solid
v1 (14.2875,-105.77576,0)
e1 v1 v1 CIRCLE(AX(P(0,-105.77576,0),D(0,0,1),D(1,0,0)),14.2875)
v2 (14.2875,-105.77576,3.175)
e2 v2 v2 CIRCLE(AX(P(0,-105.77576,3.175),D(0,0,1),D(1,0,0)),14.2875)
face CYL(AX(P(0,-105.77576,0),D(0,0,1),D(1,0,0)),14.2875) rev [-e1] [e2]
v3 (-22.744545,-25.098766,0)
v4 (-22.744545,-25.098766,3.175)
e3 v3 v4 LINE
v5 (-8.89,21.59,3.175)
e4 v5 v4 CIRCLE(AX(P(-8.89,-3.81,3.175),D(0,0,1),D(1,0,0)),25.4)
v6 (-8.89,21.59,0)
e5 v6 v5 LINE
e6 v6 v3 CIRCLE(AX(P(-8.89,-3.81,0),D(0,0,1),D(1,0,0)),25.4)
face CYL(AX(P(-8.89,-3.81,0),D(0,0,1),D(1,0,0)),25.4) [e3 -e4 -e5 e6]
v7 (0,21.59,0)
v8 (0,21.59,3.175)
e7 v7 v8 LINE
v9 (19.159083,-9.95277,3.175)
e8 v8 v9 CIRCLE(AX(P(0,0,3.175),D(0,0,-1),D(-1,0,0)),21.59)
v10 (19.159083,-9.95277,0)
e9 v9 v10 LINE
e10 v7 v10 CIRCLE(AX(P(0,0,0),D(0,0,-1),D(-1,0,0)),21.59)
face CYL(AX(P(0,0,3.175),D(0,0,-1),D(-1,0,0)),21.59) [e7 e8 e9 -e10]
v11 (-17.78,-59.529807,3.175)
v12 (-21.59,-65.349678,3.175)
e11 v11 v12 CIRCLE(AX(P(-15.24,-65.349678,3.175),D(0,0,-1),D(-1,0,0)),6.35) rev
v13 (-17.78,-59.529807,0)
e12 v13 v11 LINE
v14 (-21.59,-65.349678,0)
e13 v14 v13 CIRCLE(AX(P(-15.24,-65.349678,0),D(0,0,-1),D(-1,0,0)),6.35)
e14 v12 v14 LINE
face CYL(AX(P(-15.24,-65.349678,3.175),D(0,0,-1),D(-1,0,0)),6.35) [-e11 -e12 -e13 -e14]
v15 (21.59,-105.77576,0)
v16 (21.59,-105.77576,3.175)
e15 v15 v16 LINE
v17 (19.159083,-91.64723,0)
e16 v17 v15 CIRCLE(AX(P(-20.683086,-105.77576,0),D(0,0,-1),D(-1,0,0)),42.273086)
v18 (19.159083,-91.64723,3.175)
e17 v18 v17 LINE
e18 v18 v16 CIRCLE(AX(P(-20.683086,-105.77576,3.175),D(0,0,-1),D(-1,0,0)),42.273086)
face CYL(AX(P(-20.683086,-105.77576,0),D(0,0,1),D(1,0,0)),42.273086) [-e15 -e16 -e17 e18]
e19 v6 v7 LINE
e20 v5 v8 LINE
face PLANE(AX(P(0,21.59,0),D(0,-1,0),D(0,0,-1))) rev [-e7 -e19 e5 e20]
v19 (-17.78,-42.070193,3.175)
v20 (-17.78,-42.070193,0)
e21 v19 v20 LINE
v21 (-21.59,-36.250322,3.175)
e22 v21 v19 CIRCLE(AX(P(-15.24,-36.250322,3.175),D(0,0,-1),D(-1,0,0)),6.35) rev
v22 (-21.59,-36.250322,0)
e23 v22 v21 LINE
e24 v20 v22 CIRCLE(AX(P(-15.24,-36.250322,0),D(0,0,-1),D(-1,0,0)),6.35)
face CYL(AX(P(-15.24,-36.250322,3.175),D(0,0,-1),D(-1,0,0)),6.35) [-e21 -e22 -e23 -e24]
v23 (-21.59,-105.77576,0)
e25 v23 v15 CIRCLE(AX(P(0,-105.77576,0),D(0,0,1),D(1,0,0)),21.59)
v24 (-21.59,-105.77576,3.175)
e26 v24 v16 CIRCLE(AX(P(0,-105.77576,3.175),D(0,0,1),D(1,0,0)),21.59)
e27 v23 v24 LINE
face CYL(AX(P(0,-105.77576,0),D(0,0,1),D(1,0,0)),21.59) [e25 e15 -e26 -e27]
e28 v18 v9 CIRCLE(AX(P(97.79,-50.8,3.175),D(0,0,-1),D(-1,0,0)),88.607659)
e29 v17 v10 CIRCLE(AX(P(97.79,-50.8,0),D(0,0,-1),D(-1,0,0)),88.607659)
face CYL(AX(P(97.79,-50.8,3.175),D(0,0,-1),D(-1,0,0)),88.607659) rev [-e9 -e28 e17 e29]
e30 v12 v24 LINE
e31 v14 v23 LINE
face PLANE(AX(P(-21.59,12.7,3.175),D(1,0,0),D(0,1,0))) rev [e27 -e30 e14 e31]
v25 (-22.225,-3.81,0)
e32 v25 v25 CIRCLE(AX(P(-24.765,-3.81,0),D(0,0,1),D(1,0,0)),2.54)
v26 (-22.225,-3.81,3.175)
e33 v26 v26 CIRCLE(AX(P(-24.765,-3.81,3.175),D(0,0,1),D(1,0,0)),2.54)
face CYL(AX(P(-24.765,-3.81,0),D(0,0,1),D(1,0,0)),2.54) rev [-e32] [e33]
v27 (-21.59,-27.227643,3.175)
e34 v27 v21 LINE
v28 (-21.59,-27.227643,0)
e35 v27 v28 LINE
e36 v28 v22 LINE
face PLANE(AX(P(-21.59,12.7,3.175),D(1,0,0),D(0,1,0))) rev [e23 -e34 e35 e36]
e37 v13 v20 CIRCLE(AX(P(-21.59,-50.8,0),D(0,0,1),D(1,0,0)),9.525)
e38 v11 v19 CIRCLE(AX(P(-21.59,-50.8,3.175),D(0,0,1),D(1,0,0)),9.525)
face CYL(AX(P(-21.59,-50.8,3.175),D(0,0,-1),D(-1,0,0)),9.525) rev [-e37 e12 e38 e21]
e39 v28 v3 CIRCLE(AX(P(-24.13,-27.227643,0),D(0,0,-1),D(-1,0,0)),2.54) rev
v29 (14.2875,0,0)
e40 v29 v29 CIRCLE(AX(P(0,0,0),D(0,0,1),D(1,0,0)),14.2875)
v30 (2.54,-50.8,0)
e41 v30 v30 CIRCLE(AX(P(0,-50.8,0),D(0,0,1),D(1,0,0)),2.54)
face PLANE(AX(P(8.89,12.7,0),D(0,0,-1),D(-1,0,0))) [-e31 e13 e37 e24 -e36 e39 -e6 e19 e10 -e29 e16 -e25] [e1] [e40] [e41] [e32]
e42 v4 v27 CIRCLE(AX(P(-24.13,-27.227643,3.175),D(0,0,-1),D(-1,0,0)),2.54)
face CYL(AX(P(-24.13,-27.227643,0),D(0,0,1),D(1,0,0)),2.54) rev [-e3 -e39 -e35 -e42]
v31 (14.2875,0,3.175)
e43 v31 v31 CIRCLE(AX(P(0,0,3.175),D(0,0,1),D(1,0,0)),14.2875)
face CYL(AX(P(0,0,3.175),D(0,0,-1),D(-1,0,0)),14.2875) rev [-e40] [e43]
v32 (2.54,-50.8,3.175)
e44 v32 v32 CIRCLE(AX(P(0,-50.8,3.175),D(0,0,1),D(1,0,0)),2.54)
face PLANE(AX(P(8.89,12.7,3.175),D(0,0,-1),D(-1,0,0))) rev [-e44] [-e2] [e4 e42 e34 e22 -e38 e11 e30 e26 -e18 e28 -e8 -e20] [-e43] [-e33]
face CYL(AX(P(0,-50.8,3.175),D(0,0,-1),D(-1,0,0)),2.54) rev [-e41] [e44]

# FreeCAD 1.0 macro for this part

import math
import FreeCAD as App
import Part
import Sketcher
Q = App.Units.Quantity


def edges_at(feature, points):
    """Names of the edges that pass closest to the given points."""
    edges = feature.Shape.Edges
    near = lambda p: min(range(len(edges)), key=lambda i: edges[i].distToShape(Part.Vertex(*p))[0])
    return sorted({f"Edge{near(p) + 1}" for p in points})


def add_polygon(sketch, points):
    """Adds a closed chain of lines whose ends are joined by coincident constraints."""
    first, n = sketch.GeometryCount, len(points)
    for a, b in zip(points, points[1:] + points[:1]):
        sketch.addGeometry(Part.LineSegment(App.Vector(*a, 0), App.Vector(*b, 0)), False)
    for i in range(n):
        sketch.addConstraint(Sketcher.Constraint("Coincident", first + i, 2, first + (i + 1) % n, 1))

doc = App.newDocument("Part")
body = doc.addObject("PartDesign::Body", "Body")

# Sketch on XY plane
sketch1 = body.newObject("Sketcher::SketchObject", "Sketch")
sketch1.AttachmentSupport = (doc.getObject("XY_Plane"), [""])
sketch1.MapMode = "FlatFace"
sketch1.addGeometry([
    Part.LineSegment(App.Vector(8.89, 25.4, 0), App.Vector(-8.89, 25.4, 0)),  # 0
    Part.ArcOfCircle(Part.Circle(App.Vector(-8.89, 12.7, 0), App.Vector(0, 0, 1), 12.7), math.radians(90), math.radians(180)),  # 1
    Part.LineSegment(App.Vector(-21.59, 12.7, 0), App.Vector(-21.59, -117.77508, 0)),  # 2
    Part.ArcOfCircle(Part.Circle(App.Vector(-29.21, -117.77508, 0), App.Vector(0, 0, 1), 7.62), math.radians(-40.119167), math.radians(0)),  # 3
    Part.LineSegment(App.Vector(-23.382941, -122.685251, 0), App.Vector(-33.203284, -134.339369, 0)),  # 4
    Part.ArcOfCircle(Part.Circle(App.Vector(-28.347402, -138.431179, 0), App.Vector(0, 0, 1), 6.35), math.radians(139.880833), math.radians(229.880833)),  # 5
    Part.LineSegment(App.Vector(-32.439212, -143.287061, 0), App.Vector(-16.900388, -156.380852, 0)),  # 6
    Part.ArcOfCircle(Part.Circle(App.Vector(-12.808579, -151.52497, 0), App.Vector(0, 0, 1), 6.35), math.radians(-130.119167), math.radians(-40.119167)),  # 7
    Part.LineSegment(App.Vector(-7.952696, -155.616779, 0), App.Vector(19.797059, -122.685251, 0)),  # 8
    Part.ArcOfCircle(Part.Circle(App.Vector(13.97, -117.77508, 0), App.Vector(0, 0, 1), 7.62), math.radians(-40.119167), math.radians(0)),  # 9
    Part.LineSegment(App.Vector(21.59, -117.77508, 0), App.Vector(21.59, 12.7, 0)),  # 10
    Part.ArcOfCircle(Part.Circle(App.Vector(8.89, 12.7, 0), App.Vector(0, 0, 1), 12.7), math.radians(0), math.radians(90)),  # 11
    Part.Circle(App.Vector(0, -101.6, 0), App.Vector(0, 0, 1), 14.2875),  # 12
    Part.Circle(App.Vector(-18.532085, -142.550133, 0), App.Vector(0, 0, 1), 2.54),  # 13
    Part.Circle(App.Vector(0, -50.8, 0), App.Vector(0, 0, 1), 2.54),  # 14
    Part.Circle(App.Vector(0, 0, 0), App.Vector(0, 0, 1), 14.2875),  # 15
], False)
sketch1.addConstraint([
    Sketcher.Constraint("Tangent", 0, 2, 1, 1),
    Sketcher.Constraint("Tangent", 1, 2, 2, 1),
    Sketcher.Constraint("Tangent", 2, 2, 3, 2),
    Sketcher.Constraint("Tangent", 3, 1, 4, 1),
    Sketcher.Constraint("Tangent", 4, 2, 5, 1),
    Sketcher.Constraint("Tangent", 5, 2, 6, 1),
    Sketcher.Constraint("Tangent", 6, 2, 7, 1),
    Sketcher.Constraint("Tangent", 7, 2, 8, 1),
    Sketcher.Constraint("Tangent", 8, 2, 9, 1),
    Sketcher.Constraint("Tangent", 9, 2, 10, 1),
    Sketcher.Constraint("Tangent", 10, 2, 11, 1),
    Sketcher.Constraint("Tangent", 11, 2, 0, 1),
    Sketcher.Constraint("Horizontal", 0),
    Sketcher.Constraint("Vertical", 2),
    Sketcher.Constraint("Vertical", 10),
    Sketcher.Constraint("Coincident", 15, 3, -1, 1),
    Sketcher.Constraint("Equal", 5, 7),
    Sketcher.Constraint("Equal", 3, 9),
    Sketcher.Constraint("Equal", 1, 11),
    Sketcher.Constraint("Equal", 13, 14),
    Sketcher.Constraint("Equal", 12, 15),
    Sketcher.Constraint("Symmetric", 2, 2, 9, 2, -2),
    Sketcher.Constraint("PointOnObject", 12, 3, -2),
    Sketcher.Constraint("PointOnObject", 14, 3, -2),
    Sketcher.Constraint("Perpendicular", 4, 6),
    Sketcher.Constraint("Perpendicular", 6, 8),
    Sketcher.Constraint("Diameter", 13, Q("0.2 in")),
    Sketcher.Constraint("Radius", 1, Q("0.5 in")),
    Sketcher.Constraint("Radius", 3, Q("0.3 in")),
    Sketcher.Constraint("Radius", 5, Q("0.25 in")),
    Sketcher.Constraint("Diameter", 12, Q("1.125 in")),
    Sketcher.Constraint("DistanceX", 0, 2, 0, 1, Q("0.7 in")),
    Sketcher.Constraint("DistanceY", 12, 3, -1, 1, Q("4 in")),
    Sketcher.Constraint("DistanceY", 14, 3, -1, 1, Q("2 in")),
    Sketcher.Constraint("DistanceY", -1, 1, 0, 2, Q("1 in")),
    Sketcher.Constraint("Distance", 4, Q("0.6 in")),
    Sketcher.Constraint("Distance", 6, Q("0.8 in")),
    Sketcher.Constraint("DistanceY", 2, 2, 2, 1, 130.47508),
    Sketcher.Constraint("DistanceX", 4, 2, 13, 3, 14.671199),
    Sketcher.Constraint("DistanceY", 13, 3, 3, 1, 19.864882),
])
pad1 = body.newObject("PartDesign::Pad", "Pad")
pad1.Profile = sketch1
pad1.Length = Q("0.125 in")

# Sketch on XY plane
sketch2 = body.newObject("Sketcher::SketchObject", "Sketch001")
sketch2.AttachmentSupport = (doc.getObject("XY_Plane"), [""])
sketch2.MapMode = "FlatFace"
sketch2.addGeometry([
    Part.ArcOfCircle(Part.Circle(App.Vector(97.79, -50.8, 0), App.Vector(0, 0, 1), 88.607659), math.radians(152.549002), math.radians(207.450998)),  # 0
    Part.ArcOfCircle(Part.Circle(App.Vector(0, -101.6, 0), App.Vector(0, 0, 1), 21.59), math.radians(0), math.radians(27.450998)),  # 1
    Part.ArcOfCircle(Part.Circle(App.Vector(0, -101.6, 0), App.Vector(0, 0, 1), 21.59), math.radians(-40.119167), math.radians(0)),  # 2
    Part.LineSegment(App.Vector(16.51, -115.512153, 0), App.Vector(-17.501318, -155.874479, 0)),  # 3
    Part.LineSegment(App.Vector(-17.501318, -155.874479, 0), App.Vector(-7.789553, -164.058098, 0)),  # 4
    Part.LineSegment(App.Vector(-7.789553, -164.058098, 0), App.Vector(27.94, -121.656687, 0)),  # 5
    Part.LineSegment(App.Vector(27.94, -121.656687, 0), App.Vector(27.94, 0, 0)),  # 6
    Part.LineSegment(App.Vector(27.94, 0, 0), App.Vector(21.59, 0, 0)),  # 7
    Part.ArcOfCircle(Part.Circle(App.Vector(0, 0, 0), App.Vector(0, 0, 1), 21.59), math.radians(-27.450998), math.radians(0)),  # 8
    Part.LineSegment(App.Vector(-21.59, -41.275, 0), App.Vector(-21.59, -60.325, 0)),  # 9
    Part.ArcOfCircle(Part.Circle(App.Vector(-21.59, -50.8, 0), App.Vector(0, 0, 1), 9.525), math.radians(-90), math.radians(90)),  # 10
], False)
sketch2.addConstraint([
    Sketcher.Constraint("Tangent", 0, 2, 1, 2),
    Sketcher.Constraint("Tangent", 1, 1, 2, 2),
    Sketcher.Constraint("Tangent", 2, 1, 3, 1),
    Sketcher.Constraint("Coincident", 3, 2, 4, 1),
    Sketcher.Constraint("Coincident", 4, 2, 5, 1),
    Sketcher.Constraint("Coincident", 5, 2, 6, 1),
    Sketcher.Constraint("Coincident", 6, 2, 7, 1),
    Sketcher.Constraint("Coincident", 7, 2, 8, 2),
    Sketcher.Constraint("Tangent", 8, 1, 0, 1),
    Sketcher.Constraint("Coincident", 9, 1, 10, 2),
    Sketcher.Constraint("Coincident", 10, 1, 9, 2),
    Sketcher.Constraint("Vertical", 6),
    Sketcher.Constraint("Horizontal", 7),
    Sketcher.Constraint("Vertical", 9),
    Sketcher.Constraint("Coincident", 8, 3, -1, 1),
    Sketcher.Constraint("Equal", 1, 2),
    Sketcher.Constraint("Equal", 2, 8),
    Sketcher.Constraint("PointOnObject", 1, 3, -2),
    Sketcher.Constraint("PointOnObject", 6, 2, -1),
    Sketcher.Constraint("Perpendicular", 3, 4),
    Sketcher.Constraint("Perpendicular", 4, 5),
    Sketcher.Constraint("Horizontal", 0, 3, 10, 3),
    Sketcher.Constraint("Horizontal", 2, 3, 1, 1),
    Sketcher.Constraint("Vertical", 10, 3, 9, 1),
    Sketcher.Constraint("Radius", 1, Q("0.85 in")),
    Sketcher.Constraint("DistanceY", 0, 3, -1, 1, Q("2 in")),
    Sketcher.Constraint("Radius", 10, Q("0.375 in")),
    Sketcher.Constraint("DistanceX", 1, 1, 0, 3, Q("3 in")),
    Sketcher.Constraint("Distance", 4, Q("0.5 in")),
    Sketcher.Constraint("DistanceX", 7, 2, 7, 1, Q("0.25 in")),
    Sketcher.Constraint("DistanceX", 10, 3, 0, 3, Q("4.7 in")),
    Sketcher.Constraint("DistanceX", 2, 1, 1, 1, Q("0.2 in")),
    Sketcher.Constraint("Distance", 5, 55.447999),
])
pocket1 = body.newObject("PartDesign::Pocket", "Pocket")
pocket1.Profile = sketch2
pocket1.Type = "ThroughAll"
pocket1.Reversed = True
doc.recompute()

fillet = body.newObject("PartDesign::Fillet", "Fillet")
fillet.Base = (pocket1, edges_at(pocket1, [(-21.59, -41.275, 1.587), (-21.59, -60.325, 1.587)]))
fillet.Radius = Q("0.25 in")

# Sketch on XY plane
sketch3 = body.newObject("Sketcher::SketchObject", "Sketch002")
sketch3.AttachmentSupport = (doc.getObject("XY_Plane"), [""])
sketch3.MapMode = "FlatFace"
sketch3.addGeometry([
    Part.LineSegment(App.Vector(-27.351416, -127.394769, 0), App.Vector(-36.025496, -137.688579, 0)),  # 0
    Part.ArcOfCircle(Part.Circle(App.Vector(-32.090883, -141.004081, 0), App.Vector(0, 0, 1), 5.145264), math.radians(139.880833), math.radians(229.880833)),  # 1
    Part.LineSegment(App.Vector(-35.406385, -144.938695, 0), App.Vector(-24.403105, -154.21061, 0)),  # 2
    Part.ArcOfCircle(Part.Circle(App.Vector(-20.311295, -149.354728, 0), App.Vector(0, 0, 1), 6.35), math.radians(-130.119167), math.radians(-40.119167)),  # 3
    Part.LineSegment(App.Vector(-15.455413, -153.446538, 0), App.Vector(-7.55764, -144.073996, 0)),  # 4
    Part.LineSegment(App.Vector(-7.55764, -144.073996, 0), App.Vector(-27.351416, -127.394769, 0)),  # 5
    Part.Circle(App.Vector(-18.532085, -142.550133, 0), App.Vector(0, 0, 1), 2.54),  # 6
], False)
sketch3.addConstraint([
    Sketcher.Constraint("Tangent", 0, 2, 1, 1),
    Sketcher.Constraint("Tangent", 1, 2, 2, 1),
    Sketcher.Constraint("Tangent", 2, 2, 3, 1),
    Sketcher.Constraint("Tangent", 3, 2, 4, 1),
    Sketcher.Constraint("Coincident", 4, 2, 5, 1),
    Sketcher.Constraint("Coincident", 5, 2, 0, 1),
    Sketcher.Constraint("Perpendicular", 0, 2),
    Sketcher.Constraint("Perpendicular", 2, 4),
    Sketcher.Constraint("Perpendicular", 4, 5),
    Sketcher.Constraint("Diameter", 6, Q("0.2 in")),
    Sketcher.Constraint("Radius", 3, Q("0.25 in")),
    Sketcher.Constraint("Radius", 1, 5.145264),
    Sketcher.Constraint("DistanceX", 1, 2, 2, 2, Q("0.4332 in")),
    Sketcher.Constraint("Distance", 4, 12.256401),
    Sketcher.Constraint("DistanceX", 0, 2, 3, 3, 15.714201),
    Sketcher.Constraint("DistanceX", 1, 2, 6, 3, 16.8743),
    Sketcher.Constraint("DistanceY", 1, 3, -1, 1, 141.004081),
    Sketcher.Constraint("DistanceX", 4, 2, -1, 1, 7.55764),
    Sketcher.Constraint("DistanceY", 6, 3, 1, 3, 1.546052),
])
pad2 = body.newObject("PartDesign::Pad", "Pad001")
pad2.Profile = sketch3
pad2.Length = Q("0.125 in")

# Sketch on XY plane
sketch4 = body.newObject("Sketcher::SketchObject", "Sketch003")
sketch4.AttachmentSupport = (doc.getObject("XY_Plane"), [""])
sketch4.MapMode = "FlatFace"
sketch4.AttachmentOffset = App.Placement(App.Vector(0, 0, 0.125 * 25.4), App.Rotation())
add_polygon(sketch4, [(-63.620411, -121.164144), (-35.406385, -144.938695), (-27.06557, -127.055546), (-51.344982, -106.596497)])  # lines 0-3
sketch4.addGeometry(Part.Circle(App.Vector(-52.626814, -117.97213, 0), App.Vector(0, 0, 1), 2.54), False)  # 4
sketch4.addConstraint([
    Sketcher.Constraint("Parallel", 0, 2),
    Sketcher.Constraint("Perpendicular", 2, 3),
    Sketcher.Constraint("Diameter", 4, Q("0.2 in")),
    Sketcher.Constraint("Distance", 2, Q("1.25 in")),
    Sketcher.Constraint("Distance", 3, Q("0.75 in")),
    Sketcher.Constraint("DistanceY", 0, 2, 2, 2, 38.342198),
    Sketcher.Constraint("DistanceY", 1, 2, 3, 2, 5.891401),
    Sketcher.Constraint("DistanceY", 4, 3, -1, 1, 117.97213),
    Sketcher.Constraint("DistanceX", 1, 2, -1, 1, 27.06557),
    Sketcher.Constraint("DistanceX", 4, 3, 0, 2, 17.220428),
    Sketcher.Constraint("DistanceY", 0, 2, -1, 1, 144.938695),
])
pad3 = body.newObject("PartDesign::Pad", "Pad002")
pad3.Profile = sketch4
pad3.Length = Q("0.125 in")
pad3.Reversed = True
doc.recompute()

fillet2 = body.newObject("PartDesign::Fillet", "Fillet001")
fillet2.Base = (pad3, edges_at(pad3, [(-63.62, -121.164, 1.587), (-51.345, -106.596, 1.587), (-27.066, -127.056, 1.587)]))
fillet2.Radius = Q("0.25 in")

# Sketch on XY plane
sketch5 = body.newObject("Sketcher::SketchObject", "Sketch004")
sketch5.AttachmentSupport = (doc.getObject("XY_Plane"), [""])
sketch5.MapMode = "FlatFace"
sketch5.AttachmentOffset = App.Placement(App.Vector(0, 0, 0.125 * 25.4), App.Rotation())
sketch5.addGeometry([
    Part.LineSegment(App.Vector(-21.59, 31.75, 0), App.Vector(-21.59, 0, 0)),
    Part.ArcOfCircle(Part.Circle(App.Vector(0, 0, 0), App.Vector(0, 0, 1), 21.59), math.radians(0), math.radians(180)),
    Part.LineSegment(App.Vector(21.59, 0, 0), App.Vector(21.59, 31.75, 0)),
    Part.LineSegment(App.Vector(21.59, 31.75, 0), App.Vector(-21.59, 31.75, 0)),
], False)
sketch5.addConstraint([
    Sketcher.Constraint("Tangent", 0, 2, 1, 2),
    Sketcher.Constraint("Tangent", 1, 1, 2, 1),
    Sketcher.Constraint("Coincident", 2, 2, 3, 1),
    Sketcher.Constraint("Coincident", 3, 2, 0, 1),
    Sketcher.Constraint("Vertical", 0),
    Sketcher.Constraint("Vertical", 2),
    Sketcher.Constraint("Horizontal", 3),
    Sketcher.Constraint("Coincident", 1, 3, -1, 1),
    Sketcher.Constraint("Radius", 1, Q("0.85 in")),
    Sketcher.Constraint("DistanceY", 0, 2, 0, 1, Q("1.25 in")),
])
pocket2 = body.newObject("PartDesign::Pocket", "Pocket001")
pocket2.Profile = sketch5
pocket2.Type = "ThroughAll"

# Sketch on XY plane
sketch6 = body.newObject("Sketcher::SketchObject", "Sketch005")
sketch6.AttachmentSupport = (doc.getObject("XY_Plane"), [""])
sketch6.MapMode = "FlatFace"
sketch6.AttachmentOffset = App.Placement(App.Vector(0, 0, 0.125 * 25.4), App.Rotation())
sketch6.addGeometry([
    Part.LineSegment(App.Vector(-18.151882, -155.32628, 0), App.Vector(-17.361483, -157.51202, 0)),
    Part.LineSegment(App.Vector(-17.361483, -157.51202, 0), App.Vector(-14.375706, -156.432314, 0)),
    Part.LineSegment(App.Vector(-14.375706, -156.432314, 0), App.Vector(-15.455413, -153.446538, 0)),
    Part.ArcOfCircle(Part.Circle(App.Vector(-20.311295, -149.354728, 0), App.Vector(0, 0, 1), 6.35), math.radians(-70.119167), math.radians(-40.119167)),
], False)
sketch6.addConstraint([
    Sketcher.Constraint("Coincident", 0, 2, 1, 1),
    Sketcher.Constraint("Coincident", 1, 2, 2, 1),
    Sketcher.Constraint("Coincident", 2, 2, 3, 2),
    Sketcher.Constraint("Coincident", 3, 1, 0, 1),
    Sketcher.Constraint("Perpendicular", 0, 1),
    Sketcher.Constraint("Perpendicular", 1, 2),
    Sketcher.Constraint("Equal", 1, 2),
    Sketcher.Constraint("Radius", 3, Q("0.25 in")),
    Sketcher.Constraint("Distance", 1, Q("0.125 in")),
    Sketcher.Constraint("DistanceX", 3, 1, 0, 2, 0.7904),
    Sketcher.Constraint("Distance", 0, 2.324261),
    Sketcher.Constraint("DistanceY", 3, 3, -1, 1, 149.354728),
    Sketcher.Constraint("DistanceX", 3, 3, -1, 1, 20.311295),
])
pocket3 = body.newObject("PartDesign::Pocket", "Pocket002")
pocket3.Profile = sketch6
pocket3.Type = "ThroughAll"

# Sketch on XY plane
sketch7 = body.newObject("Sketcher::SketchObject", "Sketch006")
sketch7.AttachmentSupport = (doc.getObject("XY_Plane"), [""])
sketch7.MapMode = "FlatFace"
sketch7.AttachmentOffset = App.Placement(App.Vector(0, 0, 0.125 * 25.4), App.Rotation())
sketch7.addGeometry([
    Part.LineSegment(App.Vector(-21.59, -101.6, 0), App.Vector(-72.39, -101.6, 0)),  # 0
    Part.LineSegment(App.Vector(-72.39, -101.6, 0), App.Vector(-72.39, -165.1, 0)),  # 1
    Part.LineSegment(App.Vector(-72.39, -165.1, 0), App.Vector(16.51, -165.1, 0)),  # 2
    Part.LineSegment(App.Vector(16.51, -165.1, 0), App.Vector(16.51, -115.512153, 0)),  # 3
    Part.ArcOfCircle(Part.Circle(App.Vector(0, -101.6, 0), App.Vector(0, 0, 1), 21.59), math.radians(180), math.radians(319.880833)),  # 4
], False)
sketch7.addConstraint([
    Sketcher.Constraint("Coincident", 0, 2, 1, 1),
    Sketcher.Constraint("Coincident", 1, 2, 2, 1),
    Sketcher.Constraint("Coincident", 2, 2, 3, 1),
    Sketcher.Constraint("Coincident", 3, 2, 4, 2),
    Sketcher.Constraint("Coincident", 4, 1, 0, 1),
    Sketcher.Constraint("Horizontal", 0),
    Sketcher.Constraint("Vertical", 1),
    Sketcher.Constraint("Horizontal", 2),
    Sketcher.Constraint("Vertical", 3),
    Sketcher.Constraint("PointOnObject", 4, 3, -2),
    Sketcher.Constraint("Horizontal", 4, 3, 0, 2),
    Sketcher.Constraint("DistanceX", 0, 2, 0, 1, Q("2 in")),
    Sketcher.Constraint("Radius", 4, Q("0.85 in")),
    Sketcher.Constraint("DistanceX", 2, 1, 2, 2, Q("3.5 in")),
    Sketcher.Constraint("DistanceY", 1, 2, 1, 1, Q("2.5 in")),
    Sketcher.Constraint("DistanceY", 4, 3, -1, 1, Q("4 in")),
])
pocket4 = body.newObject("PartDesign::Pocket", "Pocket003")
pocket4.Profile = sketch7
pocket4.Type = "ThroughAll"

# Sketch on XY plane
sketch8 = body.newObject("Sketcher::SketchObject", "Sketch007")
sketch8.AttachmentSupport = (doc.getObject("XY_Plane"), [""])
sketch8.MapMode = "FlatFace"
sketch8.addGeometry([
    Part.ArcOfCircle(Part.Circle(App.Vector(-8.89, -3.81, 0), App.Vector(0, 0, 1), 25.4), math.radians(180), math.radians(240)),  # 0
    Part.LineSegment(App.Vector(-21.59, -25.807045, 0), App.Vector(-21.59, 0, 0)),  # 1
    Part.ArcOfCircle(Part.Circle(App.Vector(0, 0, 0), App.Vector(0, 0, 1), 21.59), math.radians(90), math.radians(180)),  # 2
    Part.LineSegment(App.Vector(0, 21.59, 0), App.Vector(-8.89, 21.59, 0)),  # 3
    Part.ArcOfCircle(Part.Circle(App.Vector(-8.89, -3.81, 0), App.Vector(0, 0, 1), 25.4), math.radians(90), math.radians(180)),  # 4
    Part.Circle(App.Vector(-24.765, -3.81, 0), App.Vector(0, 0, 1), 2.54),  # 5
], False)
sketch8.addConstraint([
    Sketcher.Constraint("Coincident", 0, 2, 1, 1),
    Sketcher.Constraint("Tangent", 1, 2, 2, 2),
    Sketcher.Constraint("Tangent", 2, 1, 3, 1),
    Sketcher.Constraint("Tangent", 3, 2, 4, 1),
    Sketcher.Constraint("Tangent", 4, 2, 0, 1),
    Sketcher.Constraint("Vertical", 1),
    Sketcher.Constraint("Horizontal", 3),
    Sketcher.Constraint("Coincident", 2, 3, -1, 1),
    Sketcher.Constraint("Equal", 0, 4),
    Sketcher.Constraint("Horizontal", 4, 3, 5, 3),
    Sketcher.Constraint("Horizontal", 5, 3, 4, 2),
    Sketcher.Constraint("Radius", 0, Q("1 in")),
    Sketcher.Constraint("Diameter", 5, Q("0.2 in")),
    Sketcher.Constraint("Radius", 2, Q("0.85 in")),
    Sketcher.Constraint("DistanceX", 3, 2, 3, 1, Q("0.35 in")),
    Sketcher.Constraint("DistanceX", 5, 3, -1, 1, Q("0.975 in")),
])
pad4 = body.newObject("PartDesign::Pad", "Pad003")
pad4.Profile = sketch8
pad4.Length = Q("0.125 in")
doc.recompute()

fillet3 = body.newObject("PartDesign::Fillet", "Fillet002")
fillet3.Base = (pad4, edges_at(pad4, [(-21.59, -25.807, 1.587)]))
fillet3.Radius = Q("0.1 in")

# Sketch on XY plane
sketch9 = body.newObject("Sketcher::SketchObject", "Sketch008")
sketch9.AttachmentSupport = (doc.getObject("XY_Plane"), [""])
sketch9.MapMode = "FlatFace"
sketch9.AttachmentOffset = App.Placement(App.Vector(0, 0, 0.125 * 25.4), App.Rotation())
sketch9.addGeometry([
    Part.LineSegment(App.Vector(-21.59, -101.6, 0), App.Vector(-21.59, -105.77576, 0)),  # 0
    Part.ArcOfCircle(Part.Circle(App.Vector(0, -105.77576, 0), App.Vector(0, 0, 1), 21.59), math.radians(180), math.radians(360)),  # 1
    Part.LineSegment(App.Vector(21.59, -105.77576, 0), App.Vector(21.59, -101.6, 0)),  # 2
    Part.LineSegment(App.Vector(21.59, -101.6, 0), App.Vector(4.51792, -121.700477, 0)),  # 3
    Part.LineSegment(App.Vector(4.51792, -121.700477, 0), App.Vector(-1.489523, -121.700477, 0)),  # 4
    Part.LineSegment(App.Vector(-1.489523, -121.700477, 0), App.Vector(-21.59, -101.6, 0)),  # 5
], False)
sketch9.addConstraint([
    Sketcher.Constraint("Tangent", 0, 2, 1, 1),
    Sketcher.Constraint("Tangent", 1, 2, 2, 1),
    Sketcher.Constraint("Coincident", 2, 2, 3, 1),
    Sketcher.Constraint("Coincident", 3, 2, 4, 1),
    Sketcher.Constraint("Coincident", 4, 2, 5, 1),
    Sketcher.Constraint("Coincident", 5, 2, 0, 1),
    Sketcher.Constraint("Vertical", 0),
    Sketcher.Constraint("Vertical", 2),
    Sketcher.Constraint("Horizontal", 4),
    Sketcher.Constraint("Symmetric", 2, 2, 5, 2, -2),
    Sketcher.Constraint("Radius", 1, Q("0.85 in")),
    Sketcher.Constraint("DistanceY", 2, 2, -1, 1, Q("4 in")),
    Sketcher.Constraint("Angle", 5, Q("135 deg")),
    Sketcher.Constraint("DistanceY", 0, 2, 0, 1, Q("0.1644 in")),
    Sketcher.Constraint("Distance", 3, 26.372051),
    Sketcher.Constraint("DistanceX", 4, 2, 4, 1, 6.007443),
])
pad5 = body.newObject("PartDesign::Pad", "Pad004")
pad5.Profile = sketch9
pad5.Type = "UpToLast"
pad5.Reversed = True

# Sketch on XY plane
sketch10 = body.newObject("Sketcher::SketchObject", "Sketch009")
sketch10.AttachmentSupport = (doc.getObject("XY_Plane"), [""])
sketch10.MapMode = "FlatFace"
sketch10.AttachmentOffset = App.Placement(App.Vector(0, 0, 0.125 * 25.4), App.Rotation())
sketch10.addGeometry(Part.Circle(App.Vector(0, -101.6, 0), App.Vector(0, 0, 1), 14.2875), False)
sketch10.addConstraint([
    Sketcher.Constraint("PointOnObject", 0, 3, -2),
    Sketcher.Constraint("Diameter", 0, Q("1.125 in")),
    Sketcher.Constraint("DistanceY", 0, 3, -1, 1, Q("4 in")),
])
pad6 = body.newObject("PartDesign::Pad", "Pad005")
pad6.Profile = sketch10
pad6.Length = Q("0.125 in")
pad6.Reversed = True

# Sketch on XY plane
sketch11 = body.newObject("Sketcher::SketchObject", "Sketch010")
sketch11.AttachmentSupport = (doc.getObject("XY_Plane"), [""])
sketch11.MapMode = "FlatFace"
sketch11.AttachmentOffset = App.Placement(App.Vector(0, 0, 0.125 * 25.4), App.Rotation())
sketch11.addGeometry([
    Part.LineSegment(App.Vector(21.59, -91.64723, 0), App.Vector(19.159083, -91.64723, 0)),
    Part.ArcOfCircle(Part.Circle(App.Vector(-20.683086, -105.77576, 0), App.Vector(0, 0, 1), 42.273086), math.radians(0), math.radians(19.525142)),
    Part.LineSegment(App.Vector(21.59, -105.77576, 0), App.Vector(21.59, -91.64723, 0)),
], False)
sketch11.addConstraint([
    Sketcher.Constraint("Coincident", 0, 2, 1, 2),
    Sketcher.Constraint("Tangent", 1, 1, 2, 1),
    Sketcher.Constraint("Coincident", 2, 2, 0, 1),
    Sketcher.Constraint("Horizontal", 0),
    Sketcher.Constraint("Vertical", 2),
    Sketcher.Constraint("DistanceX", -1, 1, 1, 1, Q("0.85 in")),
    Sketcher.Constraint("DistanceY", 1, 3, -1, 1, Q("4.1644 in")),
    Sketcher.Constraint("Radius", 1, 42.273086),
    Sketcher.Constraint("DistanceY", 2, 1, 2, 2, 14.12853),
])
pocket5 = body.newObject("PartDesign::Pocket", "Pocket004")
pocket5.Profile = sketch11
pocket5.Type = "ThroughAll"

# Sketch on XY plane
sketch12 = body.newObject("Sketcher::SketchObject", "Sketch011")
sketch12.AttachmentSupport = (doc.getObject("XY_Plane"), [""])
sketch12.MapMode = "FlatFace"
sketch12.AttachmentOffset = App.Placement(App.Vector(0, 0, 0.125 * 25.4), App.Rotation())
sketch12.addGeometry(Part.Circle(App.Vector(0, -105.77576, 0), App.Vector(0, 0, 1), 14.2875), False)
sketch12.addConstraint([
    Sketcher.Constraint("PointOnObject", 0, 3, -2),
    Sketcher.Constraint("Diameter", 0, Q("1.125 in")),
    Sketcher.Constraint("DistanceY", 0, 3, -1, 1, Q("4.1644 in")),
])
pocket6 = body.newObject("PartDesign::Pocket", "Pocket005")
pocket6.Profile = sketch12
pocket6.Type = "ThroughAll"

doc.recompute()
